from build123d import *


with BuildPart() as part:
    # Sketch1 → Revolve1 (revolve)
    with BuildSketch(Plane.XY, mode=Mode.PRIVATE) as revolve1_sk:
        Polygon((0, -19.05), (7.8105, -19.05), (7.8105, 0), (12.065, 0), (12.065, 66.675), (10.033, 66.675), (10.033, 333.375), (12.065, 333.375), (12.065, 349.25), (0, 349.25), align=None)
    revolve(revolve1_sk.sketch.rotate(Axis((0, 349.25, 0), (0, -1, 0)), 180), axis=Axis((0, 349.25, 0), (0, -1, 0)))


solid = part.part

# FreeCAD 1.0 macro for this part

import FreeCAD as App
import Part
import Sketcher
from FreeCAD import Vector
Q = App.Units.Quantity

doc = App.newDocument("Part")
params = doc.addObject("Spreadsheet::Sheet", "Params")
for row, (alias, value) in enumerate([
    ("sketch1_height", "10.5 in"),
    ("sketch1_height2", "14.5 in"),
    ("sketch1_width", "0.08 in"),
    ("sketch1_height3", "0.75 in"),
    ("sketch1_width2", "0.475 in"),
    ("revolution_angle", "360 deg"),
], start=1):
    params.set(f"A{row}", alias)
    params.set(f"B{row}", "=" + value)
    params.setAlias(f"B{row}", alias)

body = doc.addObject("PartDesign::Body", "Body")

# Sketch on XY plane
sketch1 = doc.addObject("Sketcher::SketchObject", "Sketch")
body.addObject(sketch1)
sketch1.AttachmentSupport = (doc.XY_Plane, [""])
sketch1.MapMode = "FlatFace"
sketch1.addGeometry([
    Part.LineSegment(Vector(0, -19.1, 0), Vector(7.8, -19.1, 0)),  # 0
    Part.LineSegment(Vector(7.8, -19.1, 0), Vector(7.8, 0, 0)),  # 1
    Part.LineSegment(Vector(7.8, 0, 0), Vector(12.1, 0, 0)),  # 2
    Part.LineSegment(Vector(12.1, 0, 0), Vector(12.1, 66.7, 0)),  # 3
    Part.LineSegment(Vector(12.1, 66.7, 0), Vector(10, 66.7, 0)),  # 4
    Part.LineSegment(Vector(10, 66.7, 0), Vector(10, 333.4, 0)),  # 5
    Part.LineSegment(Vector(10, 333.4, 0), Vector(12.1, 333.4, 0)),  # 6
    Part.LineSegment(Vector(12.1, 333.4, 0), Vector(12.1, 349.2, 0)),  # 7
    Part.LineSegment(Vector(12.1, 349.2, 0), Vector(0, 349.2, 0)),  # 8
    Part.LineSegment(Vector(0, 349.2, 0), Vector(0, -19.1, 0)),  # 9
], False)
sketch1.addConstraint([
    Sketcher.Constraint("Coincident", 0, 2, 1, 1),
    Sketcher.Constraint("Coincident", 1, 2, 2, 1),
    Sketcher.Constraint("Coincident", 2, 2, 3, 1),
    Sketcher.Constraint("Coincident", 3, 2, 4, 1),
    Sketcher.Constraint("Coincident", 4, 2, 5, 1),
    Sketcher.Constraint("Coincident", 5, 2, 6, 1),
    Sketcher.Constraint("Coincident", 6, 2, 7, 1),
    Sketcher.Constraint("Coincident", 7, 2, 8, 1),
    Sketcher.Constraint("Coincident", 8, 2, 9, 1),
    Sketcher.Constraint("Coincident", 9, 2, 0, 1),
    Sketcher.Constraint("Horizontal", 0),
    Sketcher.Constraint("Vertical", 1),
    Sketcher.Constraint("Horizontal", 2),
    Sketcher.Constraint("Vertical", 3),
    Sketcher.Constraint("Horizontal", 4),
    Sketcher.Constraint("Vertical", 5),
    Sketcher.Constraint("Horizontal", 6),
    Sketcher.Constraint("Vertical", 7),
    Sketcher.Constraint("Horizontal", 8),
    Sketcher.Constraint("Vertical", 9),
    Sketcher.Constraint("PointOnObject", 1, 2, -1),
    Sketcher.Constraint("PointOnObject", 8, 2, -2),
    Sketcher.Constraint("Vertical", 3, 2, 6, 2),
    Sketcher.Constraint("DistanceY", 5, 1, 5, 2, Q("10.5 in")),
    Sketcher.Constraint("DistanceY", 9, 2, 9, 1, Q("14.5 in")),
    Sketcher.Constraint("DistanceX", 4, 2, 4, 1, Q("0.08 in")),
    Sketcher.Constraint("DistanceY", 1, 1, 1, 2, Q("0.75 in")),
    Sketcher.Constraint("DistanceX", 8, 2, 8, 1, Q("0.475 in")),
    Sketcher.Constraint("DistanceY", 3, 1, 3, 2, Q("2.625 in")),
    Sketcher.Constraint("DistanceX", 0, 1, 0, 2, Q("0.3075 in")),
])
sketch1.setExpression("Constraints[23]", "Params.sketch1_height")
sketch1.setExpression("Constraints[24]", "Params.sketch1_height2")
sketch1.setExpression("Constraints[25]", "Params.sketch1_width")
sketch1.setExpression("Constraints[26]", "Params.sketch1_height3")
sketch1.setExpression("Constraints[27]", "Params.sketch1_width2")
revolution = doc.addObject("PartDesign::Revolution", "Revolution")
body.addObject(revolution)
revolution.Profile = sketch1
revolution.ReferenceAxis = (sketch1, ["V_Axis"])
revolution.setExpression("Angle", "Params.revolution_angle")

doc.recompute()
